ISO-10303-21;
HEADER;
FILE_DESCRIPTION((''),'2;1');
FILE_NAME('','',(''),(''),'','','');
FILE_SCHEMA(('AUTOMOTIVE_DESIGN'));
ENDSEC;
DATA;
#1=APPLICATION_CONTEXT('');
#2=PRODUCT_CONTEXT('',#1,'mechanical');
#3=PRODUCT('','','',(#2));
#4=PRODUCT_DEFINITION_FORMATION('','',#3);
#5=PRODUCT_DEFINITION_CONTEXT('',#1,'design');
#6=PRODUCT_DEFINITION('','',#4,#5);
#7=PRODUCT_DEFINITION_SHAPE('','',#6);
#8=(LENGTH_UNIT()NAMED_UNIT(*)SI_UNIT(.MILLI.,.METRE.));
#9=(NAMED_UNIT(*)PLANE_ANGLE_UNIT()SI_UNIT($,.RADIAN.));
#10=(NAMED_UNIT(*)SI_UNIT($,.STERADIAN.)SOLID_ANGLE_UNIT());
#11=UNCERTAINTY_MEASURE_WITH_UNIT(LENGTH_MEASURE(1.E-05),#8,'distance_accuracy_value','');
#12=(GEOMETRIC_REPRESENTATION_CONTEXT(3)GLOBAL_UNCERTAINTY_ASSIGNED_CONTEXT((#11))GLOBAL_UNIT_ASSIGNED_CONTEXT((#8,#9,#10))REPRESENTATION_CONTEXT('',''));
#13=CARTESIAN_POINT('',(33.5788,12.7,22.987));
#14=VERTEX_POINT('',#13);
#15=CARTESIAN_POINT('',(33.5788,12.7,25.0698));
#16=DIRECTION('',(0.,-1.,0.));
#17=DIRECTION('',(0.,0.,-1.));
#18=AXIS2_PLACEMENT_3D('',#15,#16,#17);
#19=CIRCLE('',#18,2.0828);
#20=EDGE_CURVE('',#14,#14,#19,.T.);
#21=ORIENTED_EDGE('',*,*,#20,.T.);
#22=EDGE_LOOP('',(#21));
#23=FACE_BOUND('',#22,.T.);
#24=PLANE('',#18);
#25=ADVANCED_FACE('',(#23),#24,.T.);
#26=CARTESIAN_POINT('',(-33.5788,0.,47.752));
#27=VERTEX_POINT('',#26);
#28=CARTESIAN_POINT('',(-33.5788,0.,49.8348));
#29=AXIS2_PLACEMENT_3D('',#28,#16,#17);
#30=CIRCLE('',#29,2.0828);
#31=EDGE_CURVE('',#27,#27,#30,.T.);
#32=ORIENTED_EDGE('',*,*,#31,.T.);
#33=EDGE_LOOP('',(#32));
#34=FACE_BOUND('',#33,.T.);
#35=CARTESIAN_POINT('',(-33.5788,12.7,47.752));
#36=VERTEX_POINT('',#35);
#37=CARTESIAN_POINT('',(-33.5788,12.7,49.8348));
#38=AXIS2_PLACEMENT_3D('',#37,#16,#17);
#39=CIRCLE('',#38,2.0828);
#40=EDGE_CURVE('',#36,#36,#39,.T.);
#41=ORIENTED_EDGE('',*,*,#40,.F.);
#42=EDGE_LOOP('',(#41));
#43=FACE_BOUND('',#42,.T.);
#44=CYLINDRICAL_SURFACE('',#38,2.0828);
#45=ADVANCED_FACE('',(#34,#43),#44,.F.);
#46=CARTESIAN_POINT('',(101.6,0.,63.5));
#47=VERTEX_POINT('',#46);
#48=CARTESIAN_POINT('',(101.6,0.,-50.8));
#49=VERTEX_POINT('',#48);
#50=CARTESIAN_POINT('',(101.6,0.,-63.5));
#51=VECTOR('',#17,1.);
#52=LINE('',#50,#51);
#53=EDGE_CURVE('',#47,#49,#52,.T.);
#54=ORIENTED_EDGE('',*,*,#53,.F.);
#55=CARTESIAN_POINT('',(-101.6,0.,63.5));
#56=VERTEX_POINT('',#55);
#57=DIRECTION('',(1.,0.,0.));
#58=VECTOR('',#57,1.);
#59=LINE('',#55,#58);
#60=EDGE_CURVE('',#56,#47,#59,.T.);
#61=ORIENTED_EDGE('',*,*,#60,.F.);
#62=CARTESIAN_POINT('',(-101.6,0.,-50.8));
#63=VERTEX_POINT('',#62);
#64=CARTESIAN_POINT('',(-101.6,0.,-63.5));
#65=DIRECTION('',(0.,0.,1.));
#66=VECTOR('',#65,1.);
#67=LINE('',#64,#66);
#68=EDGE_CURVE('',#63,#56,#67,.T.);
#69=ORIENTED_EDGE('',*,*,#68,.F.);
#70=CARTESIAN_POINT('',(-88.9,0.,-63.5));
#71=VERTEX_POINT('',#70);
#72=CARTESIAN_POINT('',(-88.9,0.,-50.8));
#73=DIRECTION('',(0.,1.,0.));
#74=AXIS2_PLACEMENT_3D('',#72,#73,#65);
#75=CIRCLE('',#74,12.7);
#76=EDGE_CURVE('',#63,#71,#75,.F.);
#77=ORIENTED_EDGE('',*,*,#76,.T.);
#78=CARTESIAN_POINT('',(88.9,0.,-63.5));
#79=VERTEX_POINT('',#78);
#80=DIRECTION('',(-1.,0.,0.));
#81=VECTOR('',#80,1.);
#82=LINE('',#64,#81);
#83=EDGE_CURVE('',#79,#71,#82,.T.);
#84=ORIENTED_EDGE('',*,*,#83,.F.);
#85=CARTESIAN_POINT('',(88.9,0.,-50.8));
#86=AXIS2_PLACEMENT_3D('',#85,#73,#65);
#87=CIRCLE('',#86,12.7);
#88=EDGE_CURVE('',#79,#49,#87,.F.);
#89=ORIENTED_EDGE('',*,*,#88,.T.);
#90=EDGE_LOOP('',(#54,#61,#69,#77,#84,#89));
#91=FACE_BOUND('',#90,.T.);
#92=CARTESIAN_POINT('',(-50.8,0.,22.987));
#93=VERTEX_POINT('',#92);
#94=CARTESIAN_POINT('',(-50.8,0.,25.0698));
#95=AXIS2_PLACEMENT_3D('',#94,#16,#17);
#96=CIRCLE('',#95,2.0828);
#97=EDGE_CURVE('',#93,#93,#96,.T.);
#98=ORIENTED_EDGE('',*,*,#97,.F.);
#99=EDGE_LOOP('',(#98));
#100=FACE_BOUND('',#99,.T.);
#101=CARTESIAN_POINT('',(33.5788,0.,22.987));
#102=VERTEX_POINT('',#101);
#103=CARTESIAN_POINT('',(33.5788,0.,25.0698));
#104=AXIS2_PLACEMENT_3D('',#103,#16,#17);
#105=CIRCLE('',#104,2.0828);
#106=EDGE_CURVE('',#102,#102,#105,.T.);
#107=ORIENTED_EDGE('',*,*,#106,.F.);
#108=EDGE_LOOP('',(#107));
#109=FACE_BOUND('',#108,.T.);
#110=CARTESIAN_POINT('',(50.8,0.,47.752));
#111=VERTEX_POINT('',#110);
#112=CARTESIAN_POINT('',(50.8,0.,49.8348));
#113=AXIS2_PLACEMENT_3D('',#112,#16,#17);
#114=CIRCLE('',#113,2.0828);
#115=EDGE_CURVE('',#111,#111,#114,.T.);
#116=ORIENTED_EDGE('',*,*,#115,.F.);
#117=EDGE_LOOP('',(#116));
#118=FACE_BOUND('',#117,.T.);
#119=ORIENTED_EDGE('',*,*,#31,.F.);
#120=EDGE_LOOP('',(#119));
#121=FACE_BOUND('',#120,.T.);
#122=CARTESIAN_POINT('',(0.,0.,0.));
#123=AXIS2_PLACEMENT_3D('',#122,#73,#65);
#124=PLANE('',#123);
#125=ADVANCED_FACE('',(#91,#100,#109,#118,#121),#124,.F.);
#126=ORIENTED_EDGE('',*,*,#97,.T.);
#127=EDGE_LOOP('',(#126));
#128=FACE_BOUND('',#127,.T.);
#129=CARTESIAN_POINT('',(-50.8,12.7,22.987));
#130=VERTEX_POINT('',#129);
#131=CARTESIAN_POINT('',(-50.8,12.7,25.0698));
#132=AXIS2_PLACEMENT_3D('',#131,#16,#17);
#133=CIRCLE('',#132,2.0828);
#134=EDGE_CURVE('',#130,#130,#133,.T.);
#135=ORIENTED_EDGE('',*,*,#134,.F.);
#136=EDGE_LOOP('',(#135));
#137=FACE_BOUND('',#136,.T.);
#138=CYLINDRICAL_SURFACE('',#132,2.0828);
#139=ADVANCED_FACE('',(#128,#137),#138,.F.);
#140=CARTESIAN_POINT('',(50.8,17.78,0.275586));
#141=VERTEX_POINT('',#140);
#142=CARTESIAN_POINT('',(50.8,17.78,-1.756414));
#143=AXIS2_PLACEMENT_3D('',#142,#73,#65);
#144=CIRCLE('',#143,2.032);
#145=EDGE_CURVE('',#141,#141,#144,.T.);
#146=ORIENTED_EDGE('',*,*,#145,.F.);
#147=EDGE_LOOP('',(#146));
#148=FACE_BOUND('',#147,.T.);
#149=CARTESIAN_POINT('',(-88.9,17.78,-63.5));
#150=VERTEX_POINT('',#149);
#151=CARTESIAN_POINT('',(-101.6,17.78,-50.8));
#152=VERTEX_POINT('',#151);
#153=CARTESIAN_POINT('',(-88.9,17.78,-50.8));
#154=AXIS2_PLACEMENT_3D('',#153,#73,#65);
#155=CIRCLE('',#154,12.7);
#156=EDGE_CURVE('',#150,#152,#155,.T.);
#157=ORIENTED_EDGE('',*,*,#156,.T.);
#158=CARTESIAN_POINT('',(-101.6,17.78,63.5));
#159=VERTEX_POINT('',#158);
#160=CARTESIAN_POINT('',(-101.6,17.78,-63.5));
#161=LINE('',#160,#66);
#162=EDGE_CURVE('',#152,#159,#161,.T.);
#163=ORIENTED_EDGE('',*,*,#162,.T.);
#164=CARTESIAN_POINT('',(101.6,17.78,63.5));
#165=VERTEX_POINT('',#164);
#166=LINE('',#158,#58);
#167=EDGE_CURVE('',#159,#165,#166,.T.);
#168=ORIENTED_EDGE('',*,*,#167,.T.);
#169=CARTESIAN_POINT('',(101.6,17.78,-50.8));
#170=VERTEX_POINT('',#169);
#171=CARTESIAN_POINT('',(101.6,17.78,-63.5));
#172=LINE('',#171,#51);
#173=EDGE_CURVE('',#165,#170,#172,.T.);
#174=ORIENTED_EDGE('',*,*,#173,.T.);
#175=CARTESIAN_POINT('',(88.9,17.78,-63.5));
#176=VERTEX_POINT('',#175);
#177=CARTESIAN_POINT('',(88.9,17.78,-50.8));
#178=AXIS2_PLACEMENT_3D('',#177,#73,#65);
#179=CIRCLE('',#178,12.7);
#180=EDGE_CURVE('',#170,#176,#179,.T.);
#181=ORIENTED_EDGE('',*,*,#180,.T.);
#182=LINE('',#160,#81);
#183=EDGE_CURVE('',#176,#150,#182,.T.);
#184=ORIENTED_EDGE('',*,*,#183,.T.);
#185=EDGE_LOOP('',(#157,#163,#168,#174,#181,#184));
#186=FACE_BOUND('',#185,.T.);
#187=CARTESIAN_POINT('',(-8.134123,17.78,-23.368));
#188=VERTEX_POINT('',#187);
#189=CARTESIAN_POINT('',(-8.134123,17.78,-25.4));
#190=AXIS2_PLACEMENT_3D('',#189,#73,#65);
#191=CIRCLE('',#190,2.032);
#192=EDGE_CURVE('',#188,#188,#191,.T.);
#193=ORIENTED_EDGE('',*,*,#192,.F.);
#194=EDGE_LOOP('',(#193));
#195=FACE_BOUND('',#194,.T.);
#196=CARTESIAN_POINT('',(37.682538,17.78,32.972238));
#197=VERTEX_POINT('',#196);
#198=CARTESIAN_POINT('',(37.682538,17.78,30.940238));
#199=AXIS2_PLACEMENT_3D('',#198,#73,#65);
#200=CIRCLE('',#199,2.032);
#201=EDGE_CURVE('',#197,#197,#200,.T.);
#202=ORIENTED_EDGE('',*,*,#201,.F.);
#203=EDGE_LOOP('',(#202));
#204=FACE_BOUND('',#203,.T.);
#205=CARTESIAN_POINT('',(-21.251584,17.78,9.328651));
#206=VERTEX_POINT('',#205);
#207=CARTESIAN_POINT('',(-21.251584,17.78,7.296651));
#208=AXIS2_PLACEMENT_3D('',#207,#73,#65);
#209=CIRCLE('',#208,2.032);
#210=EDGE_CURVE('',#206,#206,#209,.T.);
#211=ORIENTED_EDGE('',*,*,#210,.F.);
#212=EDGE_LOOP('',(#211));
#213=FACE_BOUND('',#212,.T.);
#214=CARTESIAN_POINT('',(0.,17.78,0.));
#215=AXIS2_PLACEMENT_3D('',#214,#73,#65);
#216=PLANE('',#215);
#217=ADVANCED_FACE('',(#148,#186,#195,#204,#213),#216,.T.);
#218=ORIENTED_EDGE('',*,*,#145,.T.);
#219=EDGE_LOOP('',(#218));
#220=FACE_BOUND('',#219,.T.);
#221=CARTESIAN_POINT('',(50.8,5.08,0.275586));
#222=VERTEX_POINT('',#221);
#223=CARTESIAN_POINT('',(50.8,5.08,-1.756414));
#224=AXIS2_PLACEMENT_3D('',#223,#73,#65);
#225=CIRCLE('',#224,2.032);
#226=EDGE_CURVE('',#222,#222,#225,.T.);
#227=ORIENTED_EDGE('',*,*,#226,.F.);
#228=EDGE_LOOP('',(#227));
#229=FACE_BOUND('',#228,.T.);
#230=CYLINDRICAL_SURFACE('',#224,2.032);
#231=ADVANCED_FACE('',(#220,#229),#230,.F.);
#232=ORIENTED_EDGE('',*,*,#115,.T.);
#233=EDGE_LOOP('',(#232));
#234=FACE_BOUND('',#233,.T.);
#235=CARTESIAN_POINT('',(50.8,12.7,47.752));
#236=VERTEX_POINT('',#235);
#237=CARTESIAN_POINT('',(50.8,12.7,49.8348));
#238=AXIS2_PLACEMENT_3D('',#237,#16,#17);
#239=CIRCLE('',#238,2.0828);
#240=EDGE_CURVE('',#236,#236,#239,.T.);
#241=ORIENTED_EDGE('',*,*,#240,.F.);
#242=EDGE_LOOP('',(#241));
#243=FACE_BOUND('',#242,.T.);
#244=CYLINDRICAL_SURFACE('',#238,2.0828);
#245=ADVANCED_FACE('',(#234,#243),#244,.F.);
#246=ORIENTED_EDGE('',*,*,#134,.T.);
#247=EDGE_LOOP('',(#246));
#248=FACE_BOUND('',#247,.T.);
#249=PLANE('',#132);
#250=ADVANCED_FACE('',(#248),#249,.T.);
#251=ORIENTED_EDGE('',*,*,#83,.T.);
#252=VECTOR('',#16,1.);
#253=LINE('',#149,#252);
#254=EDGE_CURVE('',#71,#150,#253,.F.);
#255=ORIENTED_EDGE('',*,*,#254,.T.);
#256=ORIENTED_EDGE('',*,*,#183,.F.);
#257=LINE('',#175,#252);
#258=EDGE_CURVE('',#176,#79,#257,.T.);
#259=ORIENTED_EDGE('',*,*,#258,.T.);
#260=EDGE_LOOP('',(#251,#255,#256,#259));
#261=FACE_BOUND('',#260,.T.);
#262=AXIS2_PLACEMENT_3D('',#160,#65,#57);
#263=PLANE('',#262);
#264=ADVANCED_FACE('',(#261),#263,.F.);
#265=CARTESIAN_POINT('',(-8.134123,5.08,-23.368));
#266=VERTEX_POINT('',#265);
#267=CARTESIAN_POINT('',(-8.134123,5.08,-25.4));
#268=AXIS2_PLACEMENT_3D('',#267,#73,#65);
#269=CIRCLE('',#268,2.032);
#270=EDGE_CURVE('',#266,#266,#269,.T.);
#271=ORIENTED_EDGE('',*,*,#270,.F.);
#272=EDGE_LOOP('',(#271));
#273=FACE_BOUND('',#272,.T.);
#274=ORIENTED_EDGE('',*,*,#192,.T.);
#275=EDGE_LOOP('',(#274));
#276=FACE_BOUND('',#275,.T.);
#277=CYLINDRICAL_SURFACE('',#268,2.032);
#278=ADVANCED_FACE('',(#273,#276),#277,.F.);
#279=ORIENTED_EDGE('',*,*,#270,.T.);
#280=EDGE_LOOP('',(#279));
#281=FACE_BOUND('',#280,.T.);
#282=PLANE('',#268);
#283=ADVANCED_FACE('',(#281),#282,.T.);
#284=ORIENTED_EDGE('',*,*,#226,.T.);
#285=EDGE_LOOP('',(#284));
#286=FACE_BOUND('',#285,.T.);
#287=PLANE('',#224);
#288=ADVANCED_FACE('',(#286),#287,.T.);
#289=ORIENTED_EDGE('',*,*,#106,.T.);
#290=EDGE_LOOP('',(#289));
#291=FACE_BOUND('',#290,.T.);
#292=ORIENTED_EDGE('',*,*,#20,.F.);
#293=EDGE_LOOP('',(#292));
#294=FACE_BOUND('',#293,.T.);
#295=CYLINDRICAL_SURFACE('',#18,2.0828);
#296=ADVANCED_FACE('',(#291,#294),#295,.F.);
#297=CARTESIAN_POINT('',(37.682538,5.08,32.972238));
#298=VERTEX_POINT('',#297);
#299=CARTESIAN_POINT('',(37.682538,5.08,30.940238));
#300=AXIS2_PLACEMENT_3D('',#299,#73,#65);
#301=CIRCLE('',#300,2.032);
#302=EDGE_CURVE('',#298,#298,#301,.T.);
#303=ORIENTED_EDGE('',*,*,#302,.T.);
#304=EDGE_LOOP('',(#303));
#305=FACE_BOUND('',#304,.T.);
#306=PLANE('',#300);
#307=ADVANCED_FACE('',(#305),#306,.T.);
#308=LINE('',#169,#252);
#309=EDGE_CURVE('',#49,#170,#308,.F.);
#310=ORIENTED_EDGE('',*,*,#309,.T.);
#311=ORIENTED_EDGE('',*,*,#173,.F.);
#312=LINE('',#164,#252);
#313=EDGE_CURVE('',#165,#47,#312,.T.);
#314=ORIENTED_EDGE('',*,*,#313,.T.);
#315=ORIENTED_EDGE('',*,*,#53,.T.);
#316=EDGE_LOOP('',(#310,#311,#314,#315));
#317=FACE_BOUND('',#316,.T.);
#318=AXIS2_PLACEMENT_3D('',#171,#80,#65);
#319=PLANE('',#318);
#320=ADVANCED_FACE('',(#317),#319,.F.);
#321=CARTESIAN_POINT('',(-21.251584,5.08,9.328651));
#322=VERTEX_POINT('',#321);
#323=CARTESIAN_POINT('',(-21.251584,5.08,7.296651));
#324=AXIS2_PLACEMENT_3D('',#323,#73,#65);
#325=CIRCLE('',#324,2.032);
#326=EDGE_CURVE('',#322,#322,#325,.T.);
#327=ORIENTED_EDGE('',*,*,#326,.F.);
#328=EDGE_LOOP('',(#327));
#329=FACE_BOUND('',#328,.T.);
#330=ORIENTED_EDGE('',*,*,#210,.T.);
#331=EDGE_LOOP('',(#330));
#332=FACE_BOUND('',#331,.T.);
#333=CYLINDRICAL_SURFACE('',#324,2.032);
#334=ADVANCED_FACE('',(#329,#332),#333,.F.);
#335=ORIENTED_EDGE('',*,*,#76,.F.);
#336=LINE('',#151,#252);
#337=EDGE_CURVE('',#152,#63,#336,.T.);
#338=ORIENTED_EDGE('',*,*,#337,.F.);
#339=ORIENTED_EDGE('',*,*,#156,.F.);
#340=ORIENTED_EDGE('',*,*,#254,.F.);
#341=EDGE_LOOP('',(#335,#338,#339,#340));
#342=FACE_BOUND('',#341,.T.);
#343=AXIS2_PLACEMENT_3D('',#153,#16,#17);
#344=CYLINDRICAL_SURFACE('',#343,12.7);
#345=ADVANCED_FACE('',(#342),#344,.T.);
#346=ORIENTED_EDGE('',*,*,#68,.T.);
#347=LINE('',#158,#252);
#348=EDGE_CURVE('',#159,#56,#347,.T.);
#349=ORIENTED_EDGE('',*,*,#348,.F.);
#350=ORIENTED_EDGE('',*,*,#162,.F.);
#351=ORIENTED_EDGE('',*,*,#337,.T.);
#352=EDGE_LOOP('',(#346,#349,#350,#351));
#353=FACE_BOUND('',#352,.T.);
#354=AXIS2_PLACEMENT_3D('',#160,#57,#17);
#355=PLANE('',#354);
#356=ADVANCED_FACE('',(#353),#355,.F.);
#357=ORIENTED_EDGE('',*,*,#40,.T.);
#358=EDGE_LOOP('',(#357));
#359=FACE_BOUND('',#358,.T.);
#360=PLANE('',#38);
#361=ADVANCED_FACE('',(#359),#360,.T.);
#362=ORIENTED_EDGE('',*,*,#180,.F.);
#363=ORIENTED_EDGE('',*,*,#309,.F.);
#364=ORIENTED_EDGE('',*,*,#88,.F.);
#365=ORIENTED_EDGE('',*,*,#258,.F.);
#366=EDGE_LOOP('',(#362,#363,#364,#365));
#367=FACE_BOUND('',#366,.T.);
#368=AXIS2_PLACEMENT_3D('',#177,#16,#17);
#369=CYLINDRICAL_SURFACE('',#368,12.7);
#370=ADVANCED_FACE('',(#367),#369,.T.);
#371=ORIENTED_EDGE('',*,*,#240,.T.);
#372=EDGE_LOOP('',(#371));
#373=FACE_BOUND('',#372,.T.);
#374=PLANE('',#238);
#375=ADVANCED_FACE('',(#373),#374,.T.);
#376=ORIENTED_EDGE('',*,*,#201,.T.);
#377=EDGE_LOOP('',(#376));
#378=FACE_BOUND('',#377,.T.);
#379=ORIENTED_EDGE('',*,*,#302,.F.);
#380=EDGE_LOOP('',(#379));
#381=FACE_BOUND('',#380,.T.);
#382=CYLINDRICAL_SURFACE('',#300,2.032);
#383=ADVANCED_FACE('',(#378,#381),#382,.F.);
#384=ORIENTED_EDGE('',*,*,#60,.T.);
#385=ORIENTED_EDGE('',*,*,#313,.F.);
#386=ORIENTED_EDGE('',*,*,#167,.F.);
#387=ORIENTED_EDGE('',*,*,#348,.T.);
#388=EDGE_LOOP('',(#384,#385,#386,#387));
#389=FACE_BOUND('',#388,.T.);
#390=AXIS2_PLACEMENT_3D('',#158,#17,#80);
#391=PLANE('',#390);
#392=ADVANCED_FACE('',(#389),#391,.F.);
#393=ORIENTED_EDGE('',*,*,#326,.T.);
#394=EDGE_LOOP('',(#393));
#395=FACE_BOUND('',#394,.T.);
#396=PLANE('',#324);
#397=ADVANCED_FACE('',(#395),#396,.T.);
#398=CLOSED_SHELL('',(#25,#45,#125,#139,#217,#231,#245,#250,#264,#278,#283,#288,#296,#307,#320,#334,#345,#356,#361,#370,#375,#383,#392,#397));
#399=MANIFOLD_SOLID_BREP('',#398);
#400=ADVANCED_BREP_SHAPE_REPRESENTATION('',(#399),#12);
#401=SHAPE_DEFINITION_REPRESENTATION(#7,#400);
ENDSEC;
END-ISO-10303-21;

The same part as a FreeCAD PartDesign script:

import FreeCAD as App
import Part
import Sketcher
Q = App.Units.Quantity


def edges_at(feature, points):
    """Names of the edges that pass closest to the given points."""
    edges = feature.Shape.Edges
    near = lambda p: min(range(len(edges)), key=lambda i: edges[i].distToShape(Part.Vertex(*p))[0])
    return sorted({f"Edge{near(p) + 1}" for p in points})

doc = App.newDocument("Part")
body = doc.addObject("PartDesign::Body", "Body")

sketch1 = body.newObject("Sketcher::SketchObject", "Sketch")
sketch1.AttachmentSupport = (doc.getObject("XZ_Plane"), [""])
sketch1.MapMode = "FlatFace"
sketch1.addGeometry([
    Part.LineSegment(App.Vector(-102, -64, 0), App.Vector(-102, 64, 0)),
    Part.LineSegment(App.Vector(-102, 64, 0), App.Vector(102, 64, 0)),
    Part.LineSegment(App.Vector(102, 64, 0), App.Vector(102, -64, 0)),
    Part.LineSegment(App.Vector(102, -64, 0), App.Vector(-102, -64, 0)),
], False)
sketch1.addConstraint([
    Sketcher.Constraint("Coincident", 0, 2, 1, 1),
    Sketcher.Constraint("Coincident", 1, 2, 2, 1),
    Sketcher.Constraint("Coincident", 2, 2, 3, 1),
    Sketcher.Constraint("Coincident", 3, 2, 0, 1),
    Sketcher.Constraint("Vertical", 0),
    Sketcher.Constraint("Horizontal", 1),
    Sketcher.Constraint("Vertical", 2),
    Sketcher.Constraint("Horizontal", 3),
    Sketcher.Constraint("Symmetric", 0, 2, 2, 2, -1, 1),
    Sketcher.Constraint("DistanceX", 1, 1, 1, 2, Q("8 in")),
    Sketcher.Constraint("DistanceY", 0, 1, 0, 2, Q("5 in")),
])
pad1 = body.newObject("PartDesign::Pad", "Pad")
pad1.Profile = sketch1
pad1.Length = Q("0.7 in")
pad1.Reversed = True
doc.recompute()

fillet = body.newObject("PartDesign::Fillet", "Fillet")
fillet.Base = (pad1, edges_at(pad1, [(-101.6, 8.89, -63.5), (101.6, 8.89, -63.5)]))
fillet.Radius = Q("0.5 in")

sketch2 = body.newObject("Sketcher::SketchObject", "Sketch001")
sketch2.AttachmentSupport = (doc.getObject("XZ_Plane"), [""])
sketch2.MapMode = "FlatFace"
sketch2.addGeometry([
    Part.Circle(App.Vector(50.8, 49.8, 0), App.Vector(0, 0, 1), 2.1),
    Part.Circle(App.Vector(33.6, 25.1, 0), App.Vector(0, 0, 1), 2.1),
    Part.Circle(App.Vector(-50.8, 25.1, 0), App.Vector(0, 0, 1), 2.1),
    Part.Circle(App.Vector(-33.6, 49.8, 0), App.Vector(0, 0, 1), 2.1),
], False)
sketch2.addConstraint([
    Sketcher.Constraint("Equal", 0, 1),
    Sketcher.Constraint("Equal", 1, 2),
    Sketcher.Constraint("Equal", 2, 3),
    Sketcher.Constraint("Horizontal", 1, 3, 2, 3),
    Sketcher.Constraint("Horizontal", 0, 3, 3, 3),
    Sketcher.Constraint("Diameter", 0, Q("0.164 in")),
    Sketcher.Constraint("DistanceX", -1, 1, 0, 3, Q("2 in")),
    Sketcher.Constraint("DistanceX", 2, 3, -1, 1, Q("2 in")),
    Sketcher.Constraint("DistanceY", -1, 1, 0, 3, Q("1.962 in")),
    Sketcher.Constraint("DistanceX", -1, 1, 1, 3, Q("1.322 in")),
    Sketcher.Constraint("DistanceY", -1, 1, 1, 3, Q("0.987 in")),
    Sketcher.Constraint("DistanceX", 3, 3, -1, 1, Q("1.322 in")),
])
pocket1 = body.newObject("PartDesign::Pocket", "Pocket")
pocket1.Profile = sketch2
pocket1.Length = Q("0.5 in")

sketch3 = body.newObject("Sketcher::SketchObject", "Sketch002")
sketch3.AttachmentSupport = (doc.getObject("XZ_Plane"), [""])
sketch3.MapMode = "FlatFace"
sketch3.AttachmentOffset = App.Placement(App.Vector(0, 0, -0.7 * 25.4), App.Rotation())
sketch3.addGeometry([
    Part.Circle(App.Vector(-8.1, -25.4, 0), App.Vector(0, 0, 1), 2),
    Part.Circle(App.Vector(50.8, -1.8, 0), App.Vector(0, 0, 1), 2),
    Part.Circle(App.Vector(-21.3, 7.3, 0), App.Vector(0, 0, 1), 2),
    Part.Circle(App.Vector(37.7, 30.9, 0), App.Vector(0, 0, 1), 2),
], False)
sketch3.addConstraint([
    Sketcher.Constraint("Equal", 0, 1),
    Sketcher.Constraint("Equal", 1, 2),
    Sketcher.Constraint("Equal", 2, 3),
    Sketcher.Constraint("Diameter", 0, Q("0.16 in")),
    Sketcher.Constraint("DistanceY", 0, 3, -1, 1, Q("1 in")),
    Sketcher.Constraint("DistanceX", -1, 1, 1, 3, Q("2 in")),
    Sketcher.Constraint("DistanceY", -1, 1, 2, 3, Q("7.296651 mm")),
    Sketcher.Constraint("DistanceX", -1, 1, 3, 3, Q("37.682538 mm")),
    Sketcher.Constraint("DistanceX", 2, 3, 0, 3, Q("13.117462 mm")),
    Sketcher.Constraint("DistanceY", 1, 3, 3, 3, Q("32.696651 mm")),
    Sketcher.Constraint("DistanceX", 0, 3, 3, 3, Q("45.816661 mm")),
    Sketcher.Constraint("DistanceY", 1, 3, -1, 1, Q("1.756414 mm")),
])
pocket2 = body.newObject("PartDesign::Pocket", "Pocket001")
pocket2.Profile = sketch3
pocket2.Length = Q("0.5 in")
pocket2.Reversed = True

doc.recompute()
